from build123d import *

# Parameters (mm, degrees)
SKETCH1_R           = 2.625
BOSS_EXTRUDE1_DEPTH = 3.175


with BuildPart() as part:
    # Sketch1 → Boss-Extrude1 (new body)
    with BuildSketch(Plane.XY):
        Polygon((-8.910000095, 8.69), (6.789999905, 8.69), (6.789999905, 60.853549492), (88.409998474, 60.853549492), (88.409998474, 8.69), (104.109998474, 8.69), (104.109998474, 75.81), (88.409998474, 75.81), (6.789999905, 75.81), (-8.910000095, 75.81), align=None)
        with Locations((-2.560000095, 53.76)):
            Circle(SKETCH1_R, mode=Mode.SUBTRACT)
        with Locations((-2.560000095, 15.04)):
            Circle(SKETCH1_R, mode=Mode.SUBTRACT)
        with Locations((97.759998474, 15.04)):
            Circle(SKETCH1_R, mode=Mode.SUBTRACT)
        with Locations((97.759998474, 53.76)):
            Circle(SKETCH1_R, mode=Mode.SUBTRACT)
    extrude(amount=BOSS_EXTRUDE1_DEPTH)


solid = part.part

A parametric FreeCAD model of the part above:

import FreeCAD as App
import Part
import Sketcher
from FreeCAD import Vector
Q = App.Units.Quantity


def add_polygon(sketch, points):
    """Adds a closed chain of lines whose ends are joined by coincident constraints."""
    first, n = sketch.GeometryCount, len(points)
    for a, b in zip(points, points[1:] + points[:1]):
        sketch.addGeometry(Part.LineSegment(App.Vector(*a, 0), App.Vector(*b, 0)), False)
    for i in range(n):
        sketch.addConstraint(Sketcher.Constraint("Coincident", first + i, 2, first + (i + 1) % n, 1))

doc = App.newDocument("Part")
params = doc.addObject("Spreadsheet::Sheet", "Params")
for row, (alias, value) in enumerate([
    ("sketch1_diameter", "5.25 mm"),
    ("sketch1_width", "15.7 mm"),
    ("sketch1_width2", "81.619999 mm"),
    ("sketch1_height", "67.12 mm"),
    ("pad1_length", "3.175 mm"),
], start=1):
    params.set(f"A{row}", alias)
    params.set(f"B{row}", "=" + value)
    params.setAlias(f"B{row}", alias)

body = doc.addObject("PartDesign::Body", "Body")

sketch1 = doc.addObject("Sketcher::SketchObject", "Sketch")
body.addObject(sketch1)
sketch1.AttachmentSupport = (doc.XY_Plane, [""])
sketch1.MapMode = "FlatFace"
add_polygon(sketch1, [(-8.9, 8.7), (6.8, 8.7), (6.8, 60.9), (88.4, 60.9), (88.4, 8.7), (104.1, 8.7), (104.1, 75.8), (-8.9, 75.8)])
sketch1.addGeometry(Part.Circle(Vector(-2.6, 15, 0), Vector(0, 0, 1), 2.6), False)
sketch1.addGeometry(Part.Circle(Vector(97.8, 15, 0), Vector(0, 0, 1), 2.6), False)
sketch1.addGeometry(Part.Circle(Vector(-2.6, 53.8, 0), Vector(0, 0, 1), 2.6), False)
sketch1.addGeometry(Part.Circle(Vector(97.8, 53.8, 0), Vector(0, 0, 1), 2.6), False)
sketch1.addConstraint(Sketcher.Constraint("Horizontal", 0))
sketch1.addConstraint(Sketcher.Constraint("Vertical", 1))
sketch1.addConstraint(Sketcher.Constraint("Horizontal", 2))
sketch1.addConstraint(Sketcher.Constraint("Vertical", 3))
sketch1.addConstraint(Sketcher.Constraint("Horizontal", 4))
sketch1.addConstraint(Sketcher.Constraint("Vertical", 5))
sketch1.addConstraint(Sketcher.Constraint("Horizontal", 6))
sketch1.addConstraint(Sketcher.Constraint("Vertical", 7))
sketch1.addConstraint(Sketcher.Constraint("Equal", 8, 9))
sketch1.addConstraint(Sketcher.Constraint("Equal", 9, 10))
sketch1.addConstraint(Sketcher.Constraint("Equal", 10, 11))
sketch1.addConstraint(Sketcher.Constraint("Horizontal", 8, 3, 9, 3))
sketch1.addConstraint(Sketcher.Constraint("Horizontal", 10, 3, 11, 3))
sketch1.addConstraint(Sketcher.Constraint("Horizontal", 0, 2, 3, 2))
sketch1.addConstraint(Sketcher.Constraint("Vertical", 8, 3, 10, 3))
sketch1.addConstraint(Sketcher.Constraint("Vertical", 9, 3, 11, 3))
sketch1.addConstraint(Sketcher.Constraint("Equal", 0, 4))
sketch1.addConstraint(Sketcher.Constraint("Diameter", 8, Q("5.25 mm")))
sketch1.addConstraint(Sketcher.Constraint("DistanceX", 0, 1, 0, 2, Q("15.7 mm")))
sketch1.addConstraint(Sketcher.Constraint("DistanceX", 2, 1, 2, 2, Q("81.619999 mm")))
sketch1.addConstraint(Sketcher.Constraint("DistanceY", 5, 1, 5, 2, Q("67.12 mm")))
sketch1.addConstraint(Sketcher.Constraint("DistanceX", 8, 3, -1, 1, Q("2.56 mm")))
sketch1.addConstraint(Sketcher.Constraint("DistanceY", -1, 1, 8, 3, Q("15.04 mm")))
sketch1.addConstraint(Sketcher.Constraint("DistanceX", -1, 1, 9, 3, Q("97.759998 mm")))
sketch1.addConstraint(Sketcher.Constraint("DistanceY", -1, 1, 10, 3, Q("53.76 mm")))
sketch1.addConstraint(Sketcher.Constraint("DistanceX", -1, 1, 0, 2, Q("6.79 mm")))
sketch1.addConstraint(Sketcher.Constraint("DistanceY", -1, 1, 0, 2, Q("8.69 mm")))
sketch1.addConstraint(Sketcher.Constraint("DistanceY", 1, 1, 1, 2, Q("52.163549 mm")))
sketch1.setExpression("Constraints[25]", "Params.sketch1_diameter")
sketch1.setExpression("Constraints[26]", "Params.sketch1_width")
sketch1.setExpression("Constraints[27]", "Params.sketch1_width2")
sketch1.setExpression("Constraints[28]", "Params.sketch1_height")
pad1 = doc.addObject("PartDesign::Pad", "Pad")
body.addObject(pad1)
pad1.Profile = sketch1
pad1.setExpression("Length", "Params.pad1_length")

doc.recompute()
